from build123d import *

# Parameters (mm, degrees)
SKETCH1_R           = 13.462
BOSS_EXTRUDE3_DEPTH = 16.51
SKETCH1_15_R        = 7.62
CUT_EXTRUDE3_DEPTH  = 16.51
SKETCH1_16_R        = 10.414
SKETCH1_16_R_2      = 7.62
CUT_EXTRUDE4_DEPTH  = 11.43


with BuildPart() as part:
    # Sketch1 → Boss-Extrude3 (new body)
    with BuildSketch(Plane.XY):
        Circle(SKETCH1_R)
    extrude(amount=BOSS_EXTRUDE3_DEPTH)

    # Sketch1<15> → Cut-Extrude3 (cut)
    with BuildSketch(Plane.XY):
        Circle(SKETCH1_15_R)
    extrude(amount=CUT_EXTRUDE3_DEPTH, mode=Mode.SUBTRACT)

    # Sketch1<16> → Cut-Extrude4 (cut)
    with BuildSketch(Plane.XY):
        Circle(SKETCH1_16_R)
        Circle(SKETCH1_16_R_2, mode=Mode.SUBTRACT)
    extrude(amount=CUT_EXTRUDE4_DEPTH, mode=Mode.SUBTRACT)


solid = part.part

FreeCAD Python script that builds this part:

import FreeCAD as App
import Part
import Sketcher
from FreeCAD import Vector
Q = App.Units.Quantity

doc = App.newDocument("Part")
body = doc.addObject("PartDesign::Body", "Body")

# Sketch on XY plane
sketch1 = body.newObject("Sketcher::SketchObject", "Sketch")
sketch1.AttachmentSupport = (doc.getObject("XY_Plane"), [""])
sketch1.MapMode = "FlatFace"
sketch1.addGeometry(Part.Circle(Vector(0, 0, 0), Vector(0, 0, 1), 13), False)
sketch1.addConstraint([
    Sketcher.Constraint("Coincident", 0, 3, -1, 1),
    Sketcher.Constraint("Diameter", 0, Q("1.06 in")),
])
pad1 = body.newObject("PartDesign::Pad", "Pad")
pad1.Profile = sketch1
pad1.Length = Q("0.65 in")

# Sketch on XY plane
sketch2 = body.newObject("Sketcher::SketchObject", "Sketch001")
sketch2.AttachmentSupport = (doc.getObject("XY_Plane"), [""])
sketch2.MapMode = "FlatFace"
sketch2.addGeometry(Part.Circle(Vector(0, 0, 0), Vector(0, 0, 1), 8), False)
sketch2.addConstraint([
    Sketcher.Constraint("Coincident", 0, 3, -1, 1),
    Sketcher.Constraint("Diameter", 0, Q("0.6 in")),
])
pocket1 = body.newObject("PartDesign::Pocket", "Pocket")
pocket1.Profile = sketch2
pocket1.Length = Q("0.65 in")
pocket1.Reversed = True

# Sketch on XY plane
sketch3 = body.newObject("Sketcher::SketchObject", "Sketch002")
sketch3.AttachmentSupport = (doc.getObject("XY_Plane"), [""])
sketch3.MapMode = "FlatFace"
sketch3.addGeometry([
    Part.Circle(Vector(0, 0, 0), Vector(0, 0, 1), 10),
    Part.Circle(Vector(0, 0, 0), Vector(0, 0, 1), 8),
], False)
sketch3.addConstraint([
    Sketcher.Constraint("Coincident", 0, 3, -1, 1),
    Sketcher.Constraint("Coincident", 1, 3, -1, 1),
    Sketcher.Constraint("Diameter", 1, Q("0.6 in")),
    Sketcher.Constraint("Diameter", 0, Q("0.82 in")),
])
pocket2 = body.newObject("PartDesign::Pocket", "Pocket001")
pocket2.Profile = sketch3
pocket2.Length = Q("0.45 in")
pocket2.Reversed = True

doc.recompute()
